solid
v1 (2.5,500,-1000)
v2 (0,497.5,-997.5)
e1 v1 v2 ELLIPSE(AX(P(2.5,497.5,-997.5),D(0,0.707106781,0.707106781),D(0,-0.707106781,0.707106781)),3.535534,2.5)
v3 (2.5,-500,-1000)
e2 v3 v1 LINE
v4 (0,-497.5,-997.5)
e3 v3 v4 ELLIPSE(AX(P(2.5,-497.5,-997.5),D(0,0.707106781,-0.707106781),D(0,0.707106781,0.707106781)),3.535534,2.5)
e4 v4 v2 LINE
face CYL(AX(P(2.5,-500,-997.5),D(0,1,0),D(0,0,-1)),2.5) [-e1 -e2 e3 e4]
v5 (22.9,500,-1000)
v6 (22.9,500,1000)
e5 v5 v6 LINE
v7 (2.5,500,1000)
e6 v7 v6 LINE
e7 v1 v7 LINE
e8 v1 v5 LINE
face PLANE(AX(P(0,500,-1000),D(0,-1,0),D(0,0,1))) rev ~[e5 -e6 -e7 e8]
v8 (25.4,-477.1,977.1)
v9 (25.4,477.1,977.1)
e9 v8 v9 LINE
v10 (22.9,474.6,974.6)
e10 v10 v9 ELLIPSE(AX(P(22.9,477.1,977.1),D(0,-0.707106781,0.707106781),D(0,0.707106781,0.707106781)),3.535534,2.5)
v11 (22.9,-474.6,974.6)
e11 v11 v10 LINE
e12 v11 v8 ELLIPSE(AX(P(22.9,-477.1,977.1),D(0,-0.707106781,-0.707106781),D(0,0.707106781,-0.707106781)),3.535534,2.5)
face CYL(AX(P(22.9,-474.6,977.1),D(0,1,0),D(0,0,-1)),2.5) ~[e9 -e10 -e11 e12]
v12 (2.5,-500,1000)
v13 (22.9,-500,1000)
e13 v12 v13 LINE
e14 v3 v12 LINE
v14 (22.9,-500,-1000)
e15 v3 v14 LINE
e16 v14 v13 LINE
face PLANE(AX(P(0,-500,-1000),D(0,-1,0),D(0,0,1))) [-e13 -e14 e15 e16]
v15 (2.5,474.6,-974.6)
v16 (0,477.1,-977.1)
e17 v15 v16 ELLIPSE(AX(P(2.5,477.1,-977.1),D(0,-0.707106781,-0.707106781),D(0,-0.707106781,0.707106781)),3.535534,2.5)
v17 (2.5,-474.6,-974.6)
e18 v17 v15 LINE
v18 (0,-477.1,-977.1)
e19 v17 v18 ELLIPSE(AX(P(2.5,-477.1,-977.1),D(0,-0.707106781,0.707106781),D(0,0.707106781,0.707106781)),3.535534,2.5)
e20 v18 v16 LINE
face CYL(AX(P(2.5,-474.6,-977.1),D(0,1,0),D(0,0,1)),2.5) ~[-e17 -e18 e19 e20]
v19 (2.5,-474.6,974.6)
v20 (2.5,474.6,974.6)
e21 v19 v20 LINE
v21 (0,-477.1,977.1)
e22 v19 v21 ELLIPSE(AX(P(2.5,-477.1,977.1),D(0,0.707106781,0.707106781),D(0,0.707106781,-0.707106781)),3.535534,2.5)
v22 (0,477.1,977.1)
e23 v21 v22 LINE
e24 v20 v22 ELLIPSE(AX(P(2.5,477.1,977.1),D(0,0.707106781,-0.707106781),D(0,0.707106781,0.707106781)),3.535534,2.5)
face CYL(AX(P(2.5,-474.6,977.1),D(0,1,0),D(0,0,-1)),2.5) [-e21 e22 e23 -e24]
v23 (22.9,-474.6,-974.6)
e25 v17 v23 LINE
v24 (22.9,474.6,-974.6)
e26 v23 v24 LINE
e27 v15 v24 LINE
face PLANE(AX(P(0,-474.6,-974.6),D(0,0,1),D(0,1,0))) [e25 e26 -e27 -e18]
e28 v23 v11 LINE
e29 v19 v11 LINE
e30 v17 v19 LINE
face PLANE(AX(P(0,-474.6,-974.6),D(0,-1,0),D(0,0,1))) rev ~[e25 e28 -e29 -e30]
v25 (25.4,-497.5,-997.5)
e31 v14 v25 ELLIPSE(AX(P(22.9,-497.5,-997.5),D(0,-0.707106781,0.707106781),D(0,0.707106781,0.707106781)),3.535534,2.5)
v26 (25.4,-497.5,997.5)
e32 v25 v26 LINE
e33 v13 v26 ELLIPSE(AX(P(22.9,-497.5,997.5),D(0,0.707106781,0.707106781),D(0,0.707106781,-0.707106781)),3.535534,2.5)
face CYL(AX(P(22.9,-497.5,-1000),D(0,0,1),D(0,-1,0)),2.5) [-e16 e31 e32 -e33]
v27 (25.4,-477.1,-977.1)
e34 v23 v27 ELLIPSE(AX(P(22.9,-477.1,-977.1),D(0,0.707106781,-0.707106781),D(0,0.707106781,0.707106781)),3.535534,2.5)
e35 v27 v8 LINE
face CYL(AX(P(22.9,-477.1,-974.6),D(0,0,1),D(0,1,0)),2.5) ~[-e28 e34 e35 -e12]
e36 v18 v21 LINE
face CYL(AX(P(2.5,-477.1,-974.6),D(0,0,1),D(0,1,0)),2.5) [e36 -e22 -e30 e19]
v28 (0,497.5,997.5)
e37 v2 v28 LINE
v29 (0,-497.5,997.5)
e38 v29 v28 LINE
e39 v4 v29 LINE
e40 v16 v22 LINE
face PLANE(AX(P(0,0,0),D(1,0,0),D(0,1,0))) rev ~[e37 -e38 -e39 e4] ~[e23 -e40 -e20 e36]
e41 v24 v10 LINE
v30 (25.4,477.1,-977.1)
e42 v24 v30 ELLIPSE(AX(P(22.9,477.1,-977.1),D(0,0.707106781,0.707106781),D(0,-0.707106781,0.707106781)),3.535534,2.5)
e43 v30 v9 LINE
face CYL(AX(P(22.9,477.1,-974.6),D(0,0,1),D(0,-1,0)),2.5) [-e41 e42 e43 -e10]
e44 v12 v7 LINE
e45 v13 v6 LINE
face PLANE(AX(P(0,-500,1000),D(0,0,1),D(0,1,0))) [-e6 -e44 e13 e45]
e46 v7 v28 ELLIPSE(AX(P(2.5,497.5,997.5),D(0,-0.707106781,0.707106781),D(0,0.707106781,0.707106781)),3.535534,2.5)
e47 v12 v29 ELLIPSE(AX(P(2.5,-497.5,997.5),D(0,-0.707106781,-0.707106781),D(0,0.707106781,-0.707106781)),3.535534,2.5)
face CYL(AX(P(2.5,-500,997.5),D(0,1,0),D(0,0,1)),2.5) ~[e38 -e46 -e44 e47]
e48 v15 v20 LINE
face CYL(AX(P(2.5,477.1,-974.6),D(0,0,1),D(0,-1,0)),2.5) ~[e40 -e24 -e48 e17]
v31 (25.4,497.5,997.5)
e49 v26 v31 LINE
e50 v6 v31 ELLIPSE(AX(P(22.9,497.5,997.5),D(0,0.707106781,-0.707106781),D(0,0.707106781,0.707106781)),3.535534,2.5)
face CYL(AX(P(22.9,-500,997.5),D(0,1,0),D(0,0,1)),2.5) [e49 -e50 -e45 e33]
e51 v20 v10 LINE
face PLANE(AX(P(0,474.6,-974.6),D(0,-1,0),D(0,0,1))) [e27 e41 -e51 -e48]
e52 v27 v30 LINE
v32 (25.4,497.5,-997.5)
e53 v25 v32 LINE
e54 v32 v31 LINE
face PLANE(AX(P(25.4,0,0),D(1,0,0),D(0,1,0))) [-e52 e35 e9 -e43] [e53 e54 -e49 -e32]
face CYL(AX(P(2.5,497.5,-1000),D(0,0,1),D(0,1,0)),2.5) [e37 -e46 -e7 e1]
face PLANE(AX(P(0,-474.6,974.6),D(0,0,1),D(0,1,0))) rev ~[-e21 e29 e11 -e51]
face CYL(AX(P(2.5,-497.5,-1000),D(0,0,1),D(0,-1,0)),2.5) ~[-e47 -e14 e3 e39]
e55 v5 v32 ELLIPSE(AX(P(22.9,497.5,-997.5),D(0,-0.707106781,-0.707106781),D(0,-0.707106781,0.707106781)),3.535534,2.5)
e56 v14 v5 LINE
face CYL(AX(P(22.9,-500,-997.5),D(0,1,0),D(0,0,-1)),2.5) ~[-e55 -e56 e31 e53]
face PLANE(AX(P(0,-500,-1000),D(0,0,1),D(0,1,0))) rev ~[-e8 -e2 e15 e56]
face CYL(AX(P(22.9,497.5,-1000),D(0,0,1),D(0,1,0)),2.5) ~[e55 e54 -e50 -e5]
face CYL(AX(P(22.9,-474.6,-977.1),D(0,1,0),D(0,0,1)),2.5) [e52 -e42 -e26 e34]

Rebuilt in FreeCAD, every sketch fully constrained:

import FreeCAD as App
import Part
import Sketcher

V = App.Vector


def edges_at(feature, points):
    """Names of the edges that pass closest to the given points."""
    edges = feature.Shape.Edges
    near = lambda p: min(range(len(edges)), key=lambda i: edges[i].distToShape(Part.Vertex(*p))[0])
    return sorted({f"Edge{near(p) + 1}" for p in points})

doc = App.newDocument("Part")
body = doc.addObject("PartDesign::Body", "Body")

sketch1 = doc.addObject("Sketcher::SketchObject", "Sketch")
body.addObject(sketch1)
sketch1.AttachmentSupport = (doc.YZ_Plane, [""])
sketch1.MapMode = "FlatFace"
sketch1.addGeometry([
    Part.LineSegment(V(-500, 1000, 0), V(-500, -1000, 0)),
    Part.LineSegment(V(-500, -1000, 0), V(500, -1000, 0)),
    Part.LineSegment(V(500, -1000, 0), V(500, 1000, 0)),
    Part.LineSegment(V(500, 1000, 0), V(-500, 1000, 0)),
    Part.LineSegment(V(474.6, -974.6, 0), V(-474.6, -974.6, 0)),
    Part.LineSegment(V(-474.6, -974.6, 0), V(-474.6, 974.6, 0)),
    Part.LineSegment(V(-474.6, 974.6, 0), V(474.6, 974.6, 0)),
    Part.LineSegment(V(474.6, 974.6, 0), V(474.6, -974.6, 0)),
], False)
sketch1.addConstraint([
    Sketcher.Constraint("Coincident", 0, 2, 1, 1),
    Sketcher.Constraint("Coincident", 1, 2, 2, 1),
    Sketcher.Constraint("Coincident", 2, 2, 3, 1),
    Sketcher.Constraint("Coincident", 3, 2, 0, 1),
    Sketcher.Constraint("Coincident", 4, 2, 5, 1),
    Sketcher.Constraint("Coincident", 5, 2, 6, 1),
    Sketcher.Constraint("Coincident", 6, 2, 7, 1),
    Sketcher.Constraint("Coincident", 7, 2, 4, 1),
    Sketcher.Constraint("Vertical", 0),
    Sketcher.Constraint("Horizontal", 1),
    Sketcher.Constraint("Vertical", 2),
    Sketcher.Constraint("Horizontal", 3),
    Sketcher.Constraint("Horizontal", 4),
    Sketcher.Constraint("Vertical", 5),
    Sketcher.Constraint("Horizontal", 6),
    Sketcher.Constraint("Vertical", 7),
    Sketcher.Constraint("Symmetric", 0, 2, 2, 2, -1, 1),
    Sketcher.Constraint("Symmetric", 4, 2, 6, 2, -1, 1),
    Sketcher.Constraint("DistanceX", 1, 1, 1, 2, 1000.0),
    Sketcher.Constraint("DistanceY", 0, 2, 0, 1, 2000.0),
    Sketcher.Constraint("DistanceX", 4, 2, 4, 1, 949.2),
    Sketcher.Constraint("DistanceY", 5, 1, 5, 2, 1949.2),
])
pad1 = doc.addObject("PartDesign::Pad", "Pad")
body.addObject(pad1)
pad1.Profile = sketch1
pad1.Length = 25.4
doc.recompute()

fillet = doc.addObject("PartDesign::Fillet", "Fillet")
body.addObject(fillet)
fillet.Base = (pad1, edges_at(pad1, [
    (25.4, 0, 1000),
    (25.4, 0, 974.6),
    (0, 0, 1000),
    (0, 0, 974.6),
    (0, -500, 0),
    (25.4, -500, 0),
    (0, -474.6, 0),
    (25.4, -474.6, 0),
    (25.4, 500, 0),
    (0, 500, 0),
    (25.4, 474.6, 0),
    (25.4, 0, -974.6),
    (25.4, 0, -1000),
    (0, 0, -1000),
    (0, 474.6, 0),
    (0, 0, -974.6),
]))
fillet.Radius = 2.5

doc.recompute()
